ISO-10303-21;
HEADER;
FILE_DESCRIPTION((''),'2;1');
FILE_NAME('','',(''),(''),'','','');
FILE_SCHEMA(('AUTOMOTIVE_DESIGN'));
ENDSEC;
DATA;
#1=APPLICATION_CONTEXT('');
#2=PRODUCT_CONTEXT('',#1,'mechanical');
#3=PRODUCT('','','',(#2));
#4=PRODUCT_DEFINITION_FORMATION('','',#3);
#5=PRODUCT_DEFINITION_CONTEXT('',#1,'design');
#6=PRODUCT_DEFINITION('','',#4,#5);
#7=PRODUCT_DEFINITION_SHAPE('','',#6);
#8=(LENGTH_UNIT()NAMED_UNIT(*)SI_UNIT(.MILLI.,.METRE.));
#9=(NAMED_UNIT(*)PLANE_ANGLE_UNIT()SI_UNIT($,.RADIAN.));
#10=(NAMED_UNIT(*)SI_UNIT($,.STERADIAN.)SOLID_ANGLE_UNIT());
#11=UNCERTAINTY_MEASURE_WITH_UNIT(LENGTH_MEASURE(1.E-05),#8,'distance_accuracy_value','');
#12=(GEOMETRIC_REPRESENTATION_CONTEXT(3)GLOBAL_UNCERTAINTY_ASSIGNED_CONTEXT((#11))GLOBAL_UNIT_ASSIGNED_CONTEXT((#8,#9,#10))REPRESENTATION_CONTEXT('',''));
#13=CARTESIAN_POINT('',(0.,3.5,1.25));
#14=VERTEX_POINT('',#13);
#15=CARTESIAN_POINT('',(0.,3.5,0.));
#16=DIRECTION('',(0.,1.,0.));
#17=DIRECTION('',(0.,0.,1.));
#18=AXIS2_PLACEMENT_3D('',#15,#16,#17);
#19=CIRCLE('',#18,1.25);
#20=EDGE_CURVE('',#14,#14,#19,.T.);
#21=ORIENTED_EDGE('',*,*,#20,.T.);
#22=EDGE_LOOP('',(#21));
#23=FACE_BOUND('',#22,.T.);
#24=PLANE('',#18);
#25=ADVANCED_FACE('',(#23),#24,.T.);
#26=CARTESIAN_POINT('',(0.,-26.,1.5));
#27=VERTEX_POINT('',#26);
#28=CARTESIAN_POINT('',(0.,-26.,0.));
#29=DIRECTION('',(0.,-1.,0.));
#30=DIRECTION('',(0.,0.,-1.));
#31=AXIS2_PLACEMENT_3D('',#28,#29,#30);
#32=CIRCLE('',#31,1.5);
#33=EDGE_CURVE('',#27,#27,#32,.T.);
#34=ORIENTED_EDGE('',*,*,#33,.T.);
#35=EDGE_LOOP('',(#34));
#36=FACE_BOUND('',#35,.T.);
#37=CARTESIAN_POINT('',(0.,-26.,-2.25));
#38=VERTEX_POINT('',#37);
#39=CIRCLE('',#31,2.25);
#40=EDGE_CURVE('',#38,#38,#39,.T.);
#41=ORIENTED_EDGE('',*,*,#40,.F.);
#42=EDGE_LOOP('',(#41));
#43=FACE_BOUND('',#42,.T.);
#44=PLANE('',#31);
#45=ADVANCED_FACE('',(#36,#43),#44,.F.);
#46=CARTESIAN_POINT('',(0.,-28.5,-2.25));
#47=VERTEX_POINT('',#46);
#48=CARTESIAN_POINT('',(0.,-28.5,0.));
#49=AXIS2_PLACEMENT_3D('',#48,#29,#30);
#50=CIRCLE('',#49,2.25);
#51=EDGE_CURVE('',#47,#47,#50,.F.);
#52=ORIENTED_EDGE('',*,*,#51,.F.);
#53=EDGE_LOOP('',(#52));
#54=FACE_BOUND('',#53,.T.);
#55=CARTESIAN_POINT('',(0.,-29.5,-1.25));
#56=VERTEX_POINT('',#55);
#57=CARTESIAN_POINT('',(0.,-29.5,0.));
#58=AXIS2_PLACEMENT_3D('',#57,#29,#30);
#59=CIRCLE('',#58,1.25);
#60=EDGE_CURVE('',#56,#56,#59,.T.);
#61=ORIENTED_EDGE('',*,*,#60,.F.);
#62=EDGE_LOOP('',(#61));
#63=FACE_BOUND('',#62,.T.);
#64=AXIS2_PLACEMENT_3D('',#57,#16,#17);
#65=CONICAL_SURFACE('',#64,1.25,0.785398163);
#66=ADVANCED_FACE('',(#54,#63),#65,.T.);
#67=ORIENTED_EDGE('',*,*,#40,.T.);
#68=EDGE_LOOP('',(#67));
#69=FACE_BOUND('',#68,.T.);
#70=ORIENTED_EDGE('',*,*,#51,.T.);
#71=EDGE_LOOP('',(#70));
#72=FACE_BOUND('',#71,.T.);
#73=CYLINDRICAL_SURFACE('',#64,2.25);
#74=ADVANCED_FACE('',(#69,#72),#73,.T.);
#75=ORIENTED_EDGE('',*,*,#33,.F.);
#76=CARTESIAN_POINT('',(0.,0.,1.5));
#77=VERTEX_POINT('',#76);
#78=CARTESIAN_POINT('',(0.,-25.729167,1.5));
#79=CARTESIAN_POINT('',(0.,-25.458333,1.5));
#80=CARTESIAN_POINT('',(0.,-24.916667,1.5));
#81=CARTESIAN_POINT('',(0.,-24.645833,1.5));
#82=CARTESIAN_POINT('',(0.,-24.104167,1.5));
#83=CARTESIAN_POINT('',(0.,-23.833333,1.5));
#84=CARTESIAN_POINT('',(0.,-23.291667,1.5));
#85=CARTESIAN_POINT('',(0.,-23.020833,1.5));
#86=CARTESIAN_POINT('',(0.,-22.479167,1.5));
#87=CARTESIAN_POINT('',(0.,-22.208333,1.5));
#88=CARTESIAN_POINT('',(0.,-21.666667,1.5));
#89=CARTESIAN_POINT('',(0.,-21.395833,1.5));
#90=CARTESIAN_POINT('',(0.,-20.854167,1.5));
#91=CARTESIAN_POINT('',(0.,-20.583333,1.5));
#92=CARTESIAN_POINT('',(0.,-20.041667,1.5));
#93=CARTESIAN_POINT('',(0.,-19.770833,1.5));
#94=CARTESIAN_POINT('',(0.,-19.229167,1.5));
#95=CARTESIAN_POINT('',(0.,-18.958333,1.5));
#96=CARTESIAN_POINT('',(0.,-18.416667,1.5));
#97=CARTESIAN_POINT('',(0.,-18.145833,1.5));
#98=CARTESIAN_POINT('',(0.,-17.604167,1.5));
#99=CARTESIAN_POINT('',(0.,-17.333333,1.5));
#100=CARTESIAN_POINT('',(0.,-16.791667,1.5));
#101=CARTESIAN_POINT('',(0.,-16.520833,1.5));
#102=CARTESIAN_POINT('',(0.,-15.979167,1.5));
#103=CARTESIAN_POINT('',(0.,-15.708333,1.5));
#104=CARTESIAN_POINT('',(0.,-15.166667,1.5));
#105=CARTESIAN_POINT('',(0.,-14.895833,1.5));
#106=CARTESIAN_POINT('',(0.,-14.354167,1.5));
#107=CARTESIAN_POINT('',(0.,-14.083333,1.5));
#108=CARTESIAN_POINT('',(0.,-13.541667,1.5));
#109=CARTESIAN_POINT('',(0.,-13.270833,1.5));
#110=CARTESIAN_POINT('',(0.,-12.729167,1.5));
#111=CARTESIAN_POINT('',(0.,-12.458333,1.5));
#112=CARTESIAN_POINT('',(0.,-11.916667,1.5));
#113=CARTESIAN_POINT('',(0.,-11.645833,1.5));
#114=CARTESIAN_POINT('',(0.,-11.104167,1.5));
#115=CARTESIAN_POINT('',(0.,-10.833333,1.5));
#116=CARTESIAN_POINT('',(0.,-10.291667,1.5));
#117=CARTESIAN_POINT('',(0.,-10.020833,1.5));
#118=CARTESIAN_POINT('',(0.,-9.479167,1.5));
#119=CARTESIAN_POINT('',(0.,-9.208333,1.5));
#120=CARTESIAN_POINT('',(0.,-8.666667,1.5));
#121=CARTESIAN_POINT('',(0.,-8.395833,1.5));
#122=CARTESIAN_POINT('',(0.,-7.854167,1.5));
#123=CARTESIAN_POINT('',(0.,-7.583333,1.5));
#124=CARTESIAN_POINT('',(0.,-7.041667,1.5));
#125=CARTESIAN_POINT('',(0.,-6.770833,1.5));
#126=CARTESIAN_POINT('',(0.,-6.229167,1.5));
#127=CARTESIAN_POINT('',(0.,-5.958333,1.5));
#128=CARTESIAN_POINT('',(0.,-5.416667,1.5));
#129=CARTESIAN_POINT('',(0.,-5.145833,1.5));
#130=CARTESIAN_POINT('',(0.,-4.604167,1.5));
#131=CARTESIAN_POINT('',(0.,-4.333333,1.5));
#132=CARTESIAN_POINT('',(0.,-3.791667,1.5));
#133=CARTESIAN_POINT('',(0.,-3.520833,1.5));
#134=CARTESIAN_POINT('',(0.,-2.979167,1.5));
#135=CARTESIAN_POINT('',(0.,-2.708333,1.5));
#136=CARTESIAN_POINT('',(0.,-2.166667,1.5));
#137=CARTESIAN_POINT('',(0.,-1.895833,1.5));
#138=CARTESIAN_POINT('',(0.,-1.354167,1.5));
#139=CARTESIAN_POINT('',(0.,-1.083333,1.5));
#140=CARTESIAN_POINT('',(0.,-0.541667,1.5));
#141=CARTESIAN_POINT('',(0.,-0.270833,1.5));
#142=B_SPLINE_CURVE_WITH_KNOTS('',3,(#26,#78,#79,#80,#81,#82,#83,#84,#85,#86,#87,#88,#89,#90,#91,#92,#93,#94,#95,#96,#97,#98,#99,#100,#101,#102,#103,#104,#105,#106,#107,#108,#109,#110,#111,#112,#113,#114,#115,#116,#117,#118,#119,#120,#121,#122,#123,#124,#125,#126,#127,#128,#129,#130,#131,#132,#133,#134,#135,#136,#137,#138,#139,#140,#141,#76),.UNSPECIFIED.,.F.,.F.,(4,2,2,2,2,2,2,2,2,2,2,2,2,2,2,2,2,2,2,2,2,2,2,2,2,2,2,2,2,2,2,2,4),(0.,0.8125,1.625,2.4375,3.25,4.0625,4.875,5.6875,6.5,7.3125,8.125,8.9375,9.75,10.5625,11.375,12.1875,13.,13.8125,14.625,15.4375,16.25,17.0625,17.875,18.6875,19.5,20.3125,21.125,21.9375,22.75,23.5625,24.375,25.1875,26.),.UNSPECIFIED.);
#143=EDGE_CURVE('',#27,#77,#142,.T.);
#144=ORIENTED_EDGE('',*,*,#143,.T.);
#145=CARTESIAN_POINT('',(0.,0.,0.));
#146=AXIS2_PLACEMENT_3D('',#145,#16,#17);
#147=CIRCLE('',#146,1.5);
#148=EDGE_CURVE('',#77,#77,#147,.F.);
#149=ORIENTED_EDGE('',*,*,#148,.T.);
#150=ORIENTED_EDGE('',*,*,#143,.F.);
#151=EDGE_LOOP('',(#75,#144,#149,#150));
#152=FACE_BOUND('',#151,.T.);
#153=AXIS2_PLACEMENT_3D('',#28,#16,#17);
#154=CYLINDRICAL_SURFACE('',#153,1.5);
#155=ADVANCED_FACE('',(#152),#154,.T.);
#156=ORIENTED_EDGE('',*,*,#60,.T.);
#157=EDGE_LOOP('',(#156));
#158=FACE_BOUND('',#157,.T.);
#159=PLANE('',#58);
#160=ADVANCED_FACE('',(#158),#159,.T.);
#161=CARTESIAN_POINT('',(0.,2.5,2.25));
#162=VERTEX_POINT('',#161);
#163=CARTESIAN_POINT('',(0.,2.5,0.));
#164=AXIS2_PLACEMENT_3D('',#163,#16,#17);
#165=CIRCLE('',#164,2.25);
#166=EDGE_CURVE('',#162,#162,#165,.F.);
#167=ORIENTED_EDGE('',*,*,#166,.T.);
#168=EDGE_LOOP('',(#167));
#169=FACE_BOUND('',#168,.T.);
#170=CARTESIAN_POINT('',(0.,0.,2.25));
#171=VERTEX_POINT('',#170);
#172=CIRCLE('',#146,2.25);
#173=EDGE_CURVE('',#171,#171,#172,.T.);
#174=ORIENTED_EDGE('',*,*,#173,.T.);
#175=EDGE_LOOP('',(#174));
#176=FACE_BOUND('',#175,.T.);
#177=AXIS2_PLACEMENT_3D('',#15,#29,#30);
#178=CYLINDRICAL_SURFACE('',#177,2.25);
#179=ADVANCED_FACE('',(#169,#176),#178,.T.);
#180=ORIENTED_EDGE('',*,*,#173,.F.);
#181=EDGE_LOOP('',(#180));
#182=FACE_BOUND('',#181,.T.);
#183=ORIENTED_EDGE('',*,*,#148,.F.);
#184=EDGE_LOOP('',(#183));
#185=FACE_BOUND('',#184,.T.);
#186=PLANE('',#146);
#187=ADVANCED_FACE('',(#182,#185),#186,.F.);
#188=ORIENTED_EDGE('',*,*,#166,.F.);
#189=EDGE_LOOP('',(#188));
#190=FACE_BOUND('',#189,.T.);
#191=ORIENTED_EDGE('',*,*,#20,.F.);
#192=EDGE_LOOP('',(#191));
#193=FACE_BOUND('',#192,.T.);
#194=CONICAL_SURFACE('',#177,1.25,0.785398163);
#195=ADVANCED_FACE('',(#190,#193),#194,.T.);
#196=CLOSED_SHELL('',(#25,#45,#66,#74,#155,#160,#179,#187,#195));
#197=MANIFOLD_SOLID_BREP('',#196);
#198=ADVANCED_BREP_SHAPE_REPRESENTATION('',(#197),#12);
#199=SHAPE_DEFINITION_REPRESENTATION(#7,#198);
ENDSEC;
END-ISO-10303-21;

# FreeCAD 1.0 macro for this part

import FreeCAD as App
import Part
import Sketcher
from FreeCAD import Vector


def edges_at(feature, points):
    """Names of the edges that pass closest to the given points."""
    edges = feature.Shape.Edges
    near = lambda p: min(range(len(edges)), key=lambda i: edges[i].distToShape(Part.Vertex(*p))[0])
    return sorted({f"Edge{near(p) + 1}" for p in points})

doc = App.newDocument("Part")
body = doc.addObject("PartDesign::Body", "Body")

sketch1 = body.newObject("Sketcher::SketchObject", "Sketch")
sketch1.AttachmentSupport = (doc.getObject("XZ_Plane"), [""])
sketch1.MapMode = "FlatFace"
sketch1.addGeometry(Part.Circle(Vector(0, 0, 0), Vector(0, 0, 1), 2.2), False)
sketch1.addConstraint([
    Sketcher.Constraint("Coincident", 0, 3, -1, 1),
    Sketcher.Constraint("Diameter", 0, 4.5),
])
pad1 = body.newObject("PartDesign::Pad", "Pad")
pad1.Profile = sketch1
pad1.Length = 3.5
pad1.Reversed = True

sketch2 = body.newObject("Sketcher::SketchObject", "Sketch001")
sketch2.AttachmentSupport = (doc.getObject("XZ_Plane"), [""])
sketch2.MapMode = "FlatFace"
sketch2.addGeometry(Part.Circle(Vector(0, 0, 0), Vector(0, 0, 1), 1.5), False)
sketch2.addConstraint([
    Sketcher.Constraint("Coincident", 0, 3, -1, 1),
    Sketcher.Constraint("Diameter", 0, 3.0),
])
pad2 = body.newObject("PartDesign::Pad", "Pad001")
pad2.Profile = sketch2
pad2.Length = 26

sketch3 = body.newObject("Sketcher::SketchObject", "Sketch002")
sketch3.AttachmentSupport = (doc.getObject("XZ_Plane"), [""])
sketch3.MapMode = "FlatFace"
sketch3.AttachmentOffset = App.Placement(Vector(0, 0, 29.5), App.Rotation())
sketch3.addGeometry(Part.Circle(Vector(0, 0, 0), Vector(0, 0, 1), 2.2), False)
sketch3.addConstraint([
    Sketcher.Constraint("Coincident", 0, 3, -1, 1),
    Sketcher.Constraint("Diameter", 0, 4.5),
])
pad3 = body.newObject("PartDesign::Pad", "Pad002")
pad3.Profile = sketch3
pad3.Length = 3.5
pad3.Reversed = True
doc.recompute()

chamfer = body.newObject("PartDesign::Chamfer", "Chamfer")
chamfer.Base = (pad3, edges_at(pad3, [(0, -29.5, -2.25), (0, 3.5, -2.25)]))
chamfer.Size = 1

doc.recompute()
